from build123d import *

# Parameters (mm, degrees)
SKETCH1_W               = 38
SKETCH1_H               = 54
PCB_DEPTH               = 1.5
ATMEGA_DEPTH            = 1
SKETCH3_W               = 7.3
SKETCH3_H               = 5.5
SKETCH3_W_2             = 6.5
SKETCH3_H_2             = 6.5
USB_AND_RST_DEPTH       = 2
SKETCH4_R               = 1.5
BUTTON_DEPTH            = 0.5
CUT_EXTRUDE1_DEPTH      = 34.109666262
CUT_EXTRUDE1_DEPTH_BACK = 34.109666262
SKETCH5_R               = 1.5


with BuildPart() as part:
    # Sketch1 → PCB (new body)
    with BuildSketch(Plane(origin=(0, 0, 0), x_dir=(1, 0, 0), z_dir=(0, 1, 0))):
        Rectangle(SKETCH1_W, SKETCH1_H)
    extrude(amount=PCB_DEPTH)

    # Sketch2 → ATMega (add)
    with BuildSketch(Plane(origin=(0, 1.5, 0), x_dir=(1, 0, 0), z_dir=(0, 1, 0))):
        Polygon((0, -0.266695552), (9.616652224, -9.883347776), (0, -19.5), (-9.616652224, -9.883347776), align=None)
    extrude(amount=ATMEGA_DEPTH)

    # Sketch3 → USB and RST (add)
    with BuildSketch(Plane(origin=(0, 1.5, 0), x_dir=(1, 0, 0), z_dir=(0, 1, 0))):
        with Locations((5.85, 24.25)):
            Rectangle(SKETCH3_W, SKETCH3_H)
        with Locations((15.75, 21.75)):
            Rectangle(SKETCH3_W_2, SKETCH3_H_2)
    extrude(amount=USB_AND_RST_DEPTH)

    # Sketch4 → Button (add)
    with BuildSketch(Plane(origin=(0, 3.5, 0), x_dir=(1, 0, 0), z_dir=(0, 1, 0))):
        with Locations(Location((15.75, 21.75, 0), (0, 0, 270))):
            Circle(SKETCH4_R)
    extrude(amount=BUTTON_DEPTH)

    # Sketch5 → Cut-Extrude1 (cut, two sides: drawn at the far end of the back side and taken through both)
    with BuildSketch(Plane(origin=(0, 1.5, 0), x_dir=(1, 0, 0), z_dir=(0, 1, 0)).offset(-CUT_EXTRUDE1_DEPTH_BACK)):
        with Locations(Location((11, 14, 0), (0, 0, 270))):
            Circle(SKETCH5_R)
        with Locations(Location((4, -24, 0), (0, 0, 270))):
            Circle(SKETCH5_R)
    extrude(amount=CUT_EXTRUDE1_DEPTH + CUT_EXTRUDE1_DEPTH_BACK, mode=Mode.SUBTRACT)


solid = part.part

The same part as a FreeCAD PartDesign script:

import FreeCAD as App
import Part
import Sketcher

V = App.Vector
Q = App.Units.Quantity

doc = App.newDocument("Part")
params = doc.addObject("Spreadsheet::Sheet", "Params")
for row, (alias, value) in enumerate([
    ("sketch1_width", "38 mm"),
    ("sketch1_height", "54 mm"),
    ("pad1_length", "1.5 mm"),
    ("sketch2_length", "13.6 mm"),
    ("pad2_length", "1 mm"),
    ("sketch3_width", "7.3 mm"),
    ("sketch3_width2", "6.5 mm"),
    ("sketch3_height", "5.5 mm"),
    ("pad3_length", "2 mm"),
    ("sketch4_diameter", "3 mm"),
    ("pad4_length", "0.5 mm"),
    ("sketch5_diameter", "3 mm"),
], start=1):
    params.set(f"A{row}", alias)
    params.set(f"B{row}", "=" + value)
    params.setAlias(f"B{row}", alias)

body = doc.addObject("PartDesign::Body", "Body")

# Sketch on XZ plane
sketch1 = body.newObject("Sketcher::SketchObject", "Sketch")
sketch1.AttachmentSupport = (doc.getObject("XZ_Plane"), [""])
sketch1.MapMode = "FlatFace"
sketch1.addGeometry(Part.LineSegment(V(-19, -27, 0), V(-19, 27, 0)), False)
sketch1.addGeometry(Part.LineSegment(V(-19, 27, 0), V(19, 27, 0)), False)
sketch1.addGeometry(Part.LineSegment(V(19, 27, 0), V(19, -27, 0)), False)
sketch1.addGeometry(Part.LineSegment(V(19, -27, 0), V(-19, -27, 0)), False)
sketch1.addConstraint(Sketcher.Constraint("Coincident", 0, 2, 1, 1))
sketch1.addConstraint(Sketcher.Constraint("Coincident", 1, 2, 2, 1))
sketch1.addConstraint(Sketcher.Constraint("Coincident", 2, 2, 3, 1))
sketch1.addConstraint(Sketcher.Constraint("Coincident", 3, 2, 0, 1))
sketch1.addConstraint(Sketcher.Constraint("Vertical", 0))
sketch1.addConstraint(Sketcher.Constraint("Horizontal", 1))
sketch1.addConstraint(Sketcher.Constraint("Vertical", 2))
sketch1.addConstraint(Sketcher.Constraint("Horizontal", 3))
sketch1.addConstraint(Sketcher.Constraint("Symmetric", 0, 2, 2, 2, -1, 1))
sketch1.addConstraint(Sketcher.Constraint("DistanceX", 1, 1, 1, 2, Q("38 mm")))
sketch1.addConstraint(Sketcher.Constraint("DistanceY", 0, 1, 0, 2, Q("54 mm")))
sketch1.setExpression("Constraints[9]", "Params.sketch1_width")
sketch1.setExpression("Constraints[10]", "Params.sketch1_height")
pad1 = body.newObject("PartDesign::Pad", "Pad")
pad1.Profile = sketch1
pad1.setExpression("Length", "Params.pad1_length")
pad1.Reversed = True

# Sketch on XZ plane
sketch2 = body.newObject("Sketcher::SketchObject", "Sketch001")
sketch2.AttachmentSupport = (doc.getObject("XZ_Plane"), [""])
sketch2.MapMode = "FlatFace"
sketch2.AttachmentOffset = App.Placement(V(0, 0, -1.5), App.Rotation())
sketch2.addGeometry(Part.LineSegment(V(10, 10, 0), V(0, 0, 0)), False)
sketch2.addGeometry(Part.LineSegment(V(0, 0, 0), V(-10, 10, 0)), False)
sketch2.addGeometry(Part.LineSegment(V(-10, 10, 0), V(0, 20, 0)), False)
sketch2.addGeometry(Part.LineSegment(V(0, 20, 0), V(10, 10, 0)), False)
sketch2.addConstraint(Sketcher.Constraint("Coincident", 0, 2, 1, 1))
sketch2.addConstraint(Sketcher.Constraint("Coincident", 1, 2, 2, 1))
sketch2.addConstraint(Sketcher.Constraint("Coincident", 2, 2, 3, 1))
sketch2.addConstraint(Sketcher.Constraint("Coincident", 3, 2, 0, 1))
sketch2.addConstraint(Sketcher.Constraint("Symmetric", 1, 2, 3, 2, -2))
sketch2.addConstraint(Sketcher.Constraint("PointOnObject", 0, 2, -2))
sketch2.addConstraint(Sketcher.Constraint("PointOnObject", 2, 2, -2))
sketch2.addConstraint(Sketcher.Constraint("Perpendicular", 0, 1))
sketch2.addConstraint(Sketcher.Constraint("Perpendicular", 1, 2))
sketch2.addConstraint(Sketcher.Constraint("Distance", 0, Q("13.6 mm")))
sketch2.addConstraint(Sketcher.Constraint("DistanceY", -1, 1, 2, 2, Q("19.5 mm")))
sketch2.setExpression("Constraints[9]", "Params.sketch2_length")
pad2 = body.newObject("PartDesign::Pad", "Pad001")
pad2.Profile = sketch2
pad2.setExpression("Length", "Params.pad2_length")
pad2.Reversed = True

# Sketch on XZ plane
sketch3 = body.newObject("Sketcher::SketchObject", "Sketch002")
sketch3.AttachmentSupport = (doc.getObject("XZ_Plane"), [""])
sketch3.MapMode = "FlatFace"
sketch3.AttachmentOffset = App.Placement(V(0, 0, -1.5), App.Rotation())
sketch3.addGeometry(Part.LineSegment(V(2, -27, 0), V(2, -22, 0)), False)
sketch3.addGeometry(Part.LineSegment(V(2, -22, 0), V(10, -22, 0)), False)
sketch3.addGeometry(Part.LineSegment(V(10, -22, 0), V(10, -27, 0)), False)
sketch3.addGeometry(Part.LineSegment(V(10, -27, 0), V(2, -27, 0)), False)
sketch3.addGeometry(Part.LineSegment(V(12, -25, 0), V(12, -18, 0)), False)
sketch3.addGeometry(Part.LineSegment(V(12, -18, 0), V(19, -18, 0)), False)
sketch3.addGeometry(Part.LineSegment(V(19, -18, 0), V(19, -25, 0)), False)
sketch3.addGeometry(Part.LineSegment(V(19, -25, 0), V(12, -25, 0)), False)
sketch3.addConstraint(Sketcher.Constraint("Coincident", 0, 2, 1, 1))
sketch3.addConstraint(Sketcher.Constraint("Coincident", 1, 2, 2, 1))
sketch3.addConstraint(Sketcher.Constraint("Coincident", 2, 2, 3, 1))
sketch3.addConstraint(Sketcher.Constraint("Coincident", 3, 2, 0, 1))
sketch3.addConstraint(Sketcher.Constraint("Coincident", 4, 2, 5, 1))
sketch3.addConstraint(Sketcher.Constraint("Coincident", 5, 2, 6, 1))
sketch3.addConstraint(Sketcher.Constraint("Coincident", 6, 2, 7, 1))
sketch3.addConstraint(Sketcher.Constraint("Coincident", 7, 2, 4, 1))
sketch3.addConstraint(Sketcher.Constraint("Vertical", 0))
sketch3.addConstraint(Sketcher.Constraint("Horizontal", 1))
sketch3.addConstraint(Sketcher.Constraint("Vertical", 2))
sketch3.addConstraint(Sketcher.Constraint("Horizontal", 3))
sketch3.addConstraint(Sketcher.Constraint("Vertical", 4))
sketch3.addConstraint(Sketcher.Constraint("Horizontal", 5))
sketch3.addConstraint(Sketcher.Constraint("Vertical", 6))
sketch3.addConstraint(Sketcher.Constraint("Horizontal", 7))
sketch3.addConstraint(Sketcher.Constraint("Equal", 7, 4))
sketch3.addConstraint(Sketcher.Constraint("DistanceX", 1, 1, 1, 2, Q("7.3 mm")))
sketch3.addConstraint(Sketcher.Constraint("DistanceX", 5, 1, 5, 2, Q("6.5 mm")))
sketch3.addConstraint(Sketcher.Constraint("DistanceY", 0, 1, 0, 2, Q("5.5 mm")))
sketch3.addConstraint(Sketcher.Constraint("DistanceY", 2, 2, -1, 1, Q("27 mm")))
sketch3.addConstraint(Sketcher.Constraint("DistanceX", -1, 1, 5, 2, Q("19 mm")))
sketch3.addConstraint(Sketcher.Constraint("DistanceY", 6, 2, -1, 1, Q("25 mm")))
sketch3.addConstraint(Sketcher.Constraint("DistanceX", 1, 2, 4, 2, Q("3 mm")))
sketch3.setExpression("Constraints[17]", "Params.sketch3_width")
sketch3.setExpression("Constraints[18]", "Params.sketch3_width2")
sketch3.setExpression("Constraints[19]", "Params.sketch3_height")
pad3 = body.newObject("PartDesign::Pad", "Pad002")
pad3.Profile = sketch3
pad3.setExpression("Length", "Params.pad3_length")
pad3.Reversed = True

# Sketch on XZ plane
sketch4 = body.newObject("Sketcher::SketchObject", "Sketch003")
sketch4.AttachmentSupport = (doc.getObject("XZ_Plane"), [""])
sketch4.MapMode = "FlatFace"
sketch4.AttachmentOffset = App.Placement(V(0, 0, -3.5), App.Rotation())
sketch4.addGeometry(Part.Circle(V(15.8, -21.8, 0), V(0, 0, 1), 1.5), False)
sketch4.addConstraint(Sketcher.Constraint("Diameter", 0, Q("3 mm")))
sketch4.addConstraint(Sketcher.Constraint("DistanceX", -1, 1, 0, 3, Q("15.75 mm")))
sketch4.addConstraint(Sketcher.Constraint("DistanceY", 0, 3, -1, 1, Q("21.75 mm")))
sketch4.setExpression("Constraints[0]", "Params.sketch4_diameter")
pad4 = body.newObject("PartDesign::Pad", "Pad003")
pad4.Profile = sketch4
pad4.setExpression("Length", "Params.pad4_length")
pad4.Reversed = True

# Sketch on XZ plane
sketch5 = body.newObject("Sketcher::SketchObject", "Sketch004")
sketch5.AttachmentSupport = (doc.getObject("XZ_Plane"), [""])
sketch5.MapMode = "FlatFace"
sketch5.AttachmentOffset = App.Placement(V(0, 0, -1.5), App.Rotation())
sketch5.addGeometry(Part.Circle(V(11, -14, 0), V(0, 0, 1), 1.5), False)
sketch5.addGeometry(Part.Circle(V(4, 24, 0), V(0, 0, 1), 1.5), False)
sketch5.addConstraint(Sketcher.Constraint("Equal", 0, 1))
sketch5.addConstraint(Sketcher.Constraint("Diameter", 0, Q("3 mm")))
sketch5.addConstraint(Sketcher.Constraint("DistanceX", -1, 1, 0, 3, Q("11 mm")))
sketch5.addConstraint(Sketcher.Constraint("DistanceY", 0, 3, -1, 1, Q("14 mm")))
sketch5.addConstraint(Sketcher.Constraint("DistanceX", -1, 1, 1, 3, Q("4 mm")))
sketch5.addConstraint(Sketcher.Constraint("DistanceY", -1, 1, 1, 3, Q("24 mm")))
sketch5.setExpression("Constraints[1]", "Params.sketch5_diameter")
pocket1 = body.newObject("PartDesign::Pocket", "Pocket")
pocket1.Profile = sketch5
pocket1.Type = "ThroughAll"
pocket1.Midplane = True

doc.recompute()
